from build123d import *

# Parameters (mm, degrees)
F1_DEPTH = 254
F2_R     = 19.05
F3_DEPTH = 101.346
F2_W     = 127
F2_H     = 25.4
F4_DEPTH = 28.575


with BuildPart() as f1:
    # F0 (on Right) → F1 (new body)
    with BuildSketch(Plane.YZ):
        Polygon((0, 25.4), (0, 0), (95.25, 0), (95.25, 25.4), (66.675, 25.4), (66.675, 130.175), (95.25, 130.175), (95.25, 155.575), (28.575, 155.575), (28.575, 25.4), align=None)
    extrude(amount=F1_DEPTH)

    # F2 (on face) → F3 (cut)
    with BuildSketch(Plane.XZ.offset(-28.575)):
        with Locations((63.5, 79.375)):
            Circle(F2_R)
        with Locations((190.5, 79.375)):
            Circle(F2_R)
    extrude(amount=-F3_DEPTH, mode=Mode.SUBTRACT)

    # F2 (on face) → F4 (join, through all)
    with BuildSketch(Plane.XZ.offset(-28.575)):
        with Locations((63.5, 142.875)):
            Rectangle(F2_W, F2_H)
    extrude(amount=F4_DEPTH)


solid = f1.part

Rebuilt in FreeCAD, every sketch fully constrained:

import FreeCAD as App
import Part
import Sketcher
from FreeCAD import Vector
Q = App.Units.Quantity


def add_polygon(sketch, points):
    """Adds a closed chain of lines whose ends are joined by coincident constraints."""
    first, n = sketch.GeometryCount, len(points)
    for a, b in zip(points, points[1:] + points[:1]):
        sketch.addGeometry(Part.LineSegment(App.Vector(*a, 0), App.Vector(*b, 0)), False)
    for i in range(n):
        sketch.addConstraint(Sketcher.Constraint("Coincident", first + i, 2, first + (i + 1) % n, 1))

doc = App.newDocument("Part")
params = doc.addObject("Spreadsheet::Sheet", "Params")
for row, (alias, value) in enumerate([
    ("sketch1_height", "1 in"),
    ("sketch1_width", "3.75 in"),
    ("sketch1_height2", "4.125 in"),
    ("pad1_length", "10 in"),
    ("sketch2_diameter", "1.5 in"),
    ("pocket1_length", "3.99 in"),
    ("sketch3_width", "5 in"),
    ("sketch3_height", "1 in"),
    ("pad2_length", "1.125 in"),
], start=1):
    params.set(f"A{row}", alias)
    params.set(f"B{row}", "=" + value)
    params.setAlias(f"B{row}", alias)

body = doc.addObject("PartDesign::Body", "Body")

sketch1 = body.newObject("Sketcher::SketchObject", "Sketch")
sketch1.AttachmentSupport = (doc.getObject("YZ_Plane"), [""])
sketch1.MapMode = "FlatFace"
add_polygon(sketch1, [(0, 25), (0, 0), (95, 0), (95, 25), (67, 25), (67, 130), (95, 130), (95, 156), (29, 156), (29, 25)])
sketch1.addConstraint([
    Sketcher.Constraint("Vertical", 0),
    Sketcher.Constraint("Horizontal", 1),
    Sketcher.Constraint("Vertical", 2),
    Sketcher.Constraint("Horizontal", 3),
    Sketcher.Constraint("Vertical", 4),
    Sketcher.Constraint("Horizontal", 5),
    Sketcher.Constraint("Vertical", 6),
    Sketcher.Constraint("Horizontal", 7),
    Sketcher.Constraint("Vertical", 8),
    Sketcher.Constraint("Horizontal", 9),
    Sketcher.Constraint("Coincident", 0, 2, -1, 1),
    Sketcher.Constraint("Horizontal", 3, 2, 8, 2),
    Sketcher.Constraint("Vertical", 2, 2, 5, 2),
    Sketcher.Constraint("Equal", 5, 9),
    Sketcher.Constraint("Equal", 2, 6),
    Sketcher.Constraint("DistanceY", 0, 2, 0, 1, Q("1 in")),
    Sketcher.Constraint("DistanceX", 1, 1, 1, 2, Q("3.75 in")),
    Sketcher.Constraint("DistanceX", 7, 2, 4, 2, Q("1.5 in")),
    Sketcher.Constraint("DistanceY", 4, 1, 4, 2, Q("4.125 in")),
])
sketch1.setExpression("Constraints[25]", "Params.sketch1_height")
sketch1.setExpression("Constraints[26]", "Params.sketch1_width")
sketch1.setExpression("Constraints[28]", "Params.sketch1_height2")
pad1 = body.newObject("PartDesign::Pad", "Pad")
pad1.Profile = sketch1
pad1.setExpression("Length", "Params.pad1_length")

sketch2 = body.newObject("Sketcher::SketchObject", "Sketch001")
sketch2.AttachmentSupport = (doc.getObject("XZ_Plane"), [""])
sketch2.MapMode = "FlatFace"
sketch2.AttachmentOffset = App.Placement(Vector(0, 0, -1.125 * 25.4), App.Rotation())
sketch2.addGeometry([
    Part.Circle(Vector(64, 79, 0), Vector(0, 0, 1), 19),
    Part.Circle(Vector(190, 79, 0), Vector(0, 0, 1), 19),
], False)
sketch2.addConstraint([
    Sketcher.Constraint("Equal", 0, 1),
    Sketcher.Constraint("Horizontal", 0, 3, 1, 3),
    Sketcher.Constraint("Diameter", 0, Q("1.5 in")),
    Sketcher.Constraint("DistanceX", 0, 3, 1, 3, Q("5 in")),
    Sketcher.Constraint("DistanceX", -1, 1, 0, 3, Q("2.5 in")),
    Sketcher.Constraint("DistanceY", -1, 1, 0, 3, Q("3.125 in")),
])
sketch2.setExpression("Constraints[2]", "Params.sketch2_diameter")
pocket1 = body.newObject("PartDesign::Pocket", "Pocket")
pocket1.Profile = sketch2
pocket1.setExpression("Length", "Params.pocket1_length")

sketch3 = body.newObject("Sketcher::SketchObject", "Sketch002")
sketch3.AttachmentSupport = (doc.getObject("XZ_Plane"), [""])
sketch3.MapMode = "FlatFace"
sketch3.AttachmentOffset = App.Placement(Vector(0, 0, -1.125 * 25.4), App.Rotation())
add_polygon(sketch3, [(0, 156), (0, 130), (127, 130), (127, 156)])
sketch3.addConstraint([
    Sketcher.Constraint("Vertical", 0),
    Sketcher.Constraint("Horizontal", 1),
    Sketcher.Constraint("Vertical", 2),
    Sketcher.Constraint("Horizontal", 3),
    Sketcher.Constraint("PointOnObject", 0, 2, -2),
    Sketcher.Constraint("DistanceX", 1, 1, 1, 2, Q("5 in")),
    Sketcher.Constraint("DistanceY", 0, 2, 0, 1, Q("1 in")),
    Sketcher.Constraint("DistanceY", -1, 1, 0, 2, Q("5.125 in")),
])
sketch3.setExpression("Constraints[9]", "Params.sketch3_width")
sketch3.setExpression("Constraints[10]", "Params.sketch3_height")
pad2 = body.newObject("PartDesign::Pad", "Pad001")
pad2.Profile = sketch3
pad2.setExpression("Length", "Params.pad2_length")

doc.recompute()
